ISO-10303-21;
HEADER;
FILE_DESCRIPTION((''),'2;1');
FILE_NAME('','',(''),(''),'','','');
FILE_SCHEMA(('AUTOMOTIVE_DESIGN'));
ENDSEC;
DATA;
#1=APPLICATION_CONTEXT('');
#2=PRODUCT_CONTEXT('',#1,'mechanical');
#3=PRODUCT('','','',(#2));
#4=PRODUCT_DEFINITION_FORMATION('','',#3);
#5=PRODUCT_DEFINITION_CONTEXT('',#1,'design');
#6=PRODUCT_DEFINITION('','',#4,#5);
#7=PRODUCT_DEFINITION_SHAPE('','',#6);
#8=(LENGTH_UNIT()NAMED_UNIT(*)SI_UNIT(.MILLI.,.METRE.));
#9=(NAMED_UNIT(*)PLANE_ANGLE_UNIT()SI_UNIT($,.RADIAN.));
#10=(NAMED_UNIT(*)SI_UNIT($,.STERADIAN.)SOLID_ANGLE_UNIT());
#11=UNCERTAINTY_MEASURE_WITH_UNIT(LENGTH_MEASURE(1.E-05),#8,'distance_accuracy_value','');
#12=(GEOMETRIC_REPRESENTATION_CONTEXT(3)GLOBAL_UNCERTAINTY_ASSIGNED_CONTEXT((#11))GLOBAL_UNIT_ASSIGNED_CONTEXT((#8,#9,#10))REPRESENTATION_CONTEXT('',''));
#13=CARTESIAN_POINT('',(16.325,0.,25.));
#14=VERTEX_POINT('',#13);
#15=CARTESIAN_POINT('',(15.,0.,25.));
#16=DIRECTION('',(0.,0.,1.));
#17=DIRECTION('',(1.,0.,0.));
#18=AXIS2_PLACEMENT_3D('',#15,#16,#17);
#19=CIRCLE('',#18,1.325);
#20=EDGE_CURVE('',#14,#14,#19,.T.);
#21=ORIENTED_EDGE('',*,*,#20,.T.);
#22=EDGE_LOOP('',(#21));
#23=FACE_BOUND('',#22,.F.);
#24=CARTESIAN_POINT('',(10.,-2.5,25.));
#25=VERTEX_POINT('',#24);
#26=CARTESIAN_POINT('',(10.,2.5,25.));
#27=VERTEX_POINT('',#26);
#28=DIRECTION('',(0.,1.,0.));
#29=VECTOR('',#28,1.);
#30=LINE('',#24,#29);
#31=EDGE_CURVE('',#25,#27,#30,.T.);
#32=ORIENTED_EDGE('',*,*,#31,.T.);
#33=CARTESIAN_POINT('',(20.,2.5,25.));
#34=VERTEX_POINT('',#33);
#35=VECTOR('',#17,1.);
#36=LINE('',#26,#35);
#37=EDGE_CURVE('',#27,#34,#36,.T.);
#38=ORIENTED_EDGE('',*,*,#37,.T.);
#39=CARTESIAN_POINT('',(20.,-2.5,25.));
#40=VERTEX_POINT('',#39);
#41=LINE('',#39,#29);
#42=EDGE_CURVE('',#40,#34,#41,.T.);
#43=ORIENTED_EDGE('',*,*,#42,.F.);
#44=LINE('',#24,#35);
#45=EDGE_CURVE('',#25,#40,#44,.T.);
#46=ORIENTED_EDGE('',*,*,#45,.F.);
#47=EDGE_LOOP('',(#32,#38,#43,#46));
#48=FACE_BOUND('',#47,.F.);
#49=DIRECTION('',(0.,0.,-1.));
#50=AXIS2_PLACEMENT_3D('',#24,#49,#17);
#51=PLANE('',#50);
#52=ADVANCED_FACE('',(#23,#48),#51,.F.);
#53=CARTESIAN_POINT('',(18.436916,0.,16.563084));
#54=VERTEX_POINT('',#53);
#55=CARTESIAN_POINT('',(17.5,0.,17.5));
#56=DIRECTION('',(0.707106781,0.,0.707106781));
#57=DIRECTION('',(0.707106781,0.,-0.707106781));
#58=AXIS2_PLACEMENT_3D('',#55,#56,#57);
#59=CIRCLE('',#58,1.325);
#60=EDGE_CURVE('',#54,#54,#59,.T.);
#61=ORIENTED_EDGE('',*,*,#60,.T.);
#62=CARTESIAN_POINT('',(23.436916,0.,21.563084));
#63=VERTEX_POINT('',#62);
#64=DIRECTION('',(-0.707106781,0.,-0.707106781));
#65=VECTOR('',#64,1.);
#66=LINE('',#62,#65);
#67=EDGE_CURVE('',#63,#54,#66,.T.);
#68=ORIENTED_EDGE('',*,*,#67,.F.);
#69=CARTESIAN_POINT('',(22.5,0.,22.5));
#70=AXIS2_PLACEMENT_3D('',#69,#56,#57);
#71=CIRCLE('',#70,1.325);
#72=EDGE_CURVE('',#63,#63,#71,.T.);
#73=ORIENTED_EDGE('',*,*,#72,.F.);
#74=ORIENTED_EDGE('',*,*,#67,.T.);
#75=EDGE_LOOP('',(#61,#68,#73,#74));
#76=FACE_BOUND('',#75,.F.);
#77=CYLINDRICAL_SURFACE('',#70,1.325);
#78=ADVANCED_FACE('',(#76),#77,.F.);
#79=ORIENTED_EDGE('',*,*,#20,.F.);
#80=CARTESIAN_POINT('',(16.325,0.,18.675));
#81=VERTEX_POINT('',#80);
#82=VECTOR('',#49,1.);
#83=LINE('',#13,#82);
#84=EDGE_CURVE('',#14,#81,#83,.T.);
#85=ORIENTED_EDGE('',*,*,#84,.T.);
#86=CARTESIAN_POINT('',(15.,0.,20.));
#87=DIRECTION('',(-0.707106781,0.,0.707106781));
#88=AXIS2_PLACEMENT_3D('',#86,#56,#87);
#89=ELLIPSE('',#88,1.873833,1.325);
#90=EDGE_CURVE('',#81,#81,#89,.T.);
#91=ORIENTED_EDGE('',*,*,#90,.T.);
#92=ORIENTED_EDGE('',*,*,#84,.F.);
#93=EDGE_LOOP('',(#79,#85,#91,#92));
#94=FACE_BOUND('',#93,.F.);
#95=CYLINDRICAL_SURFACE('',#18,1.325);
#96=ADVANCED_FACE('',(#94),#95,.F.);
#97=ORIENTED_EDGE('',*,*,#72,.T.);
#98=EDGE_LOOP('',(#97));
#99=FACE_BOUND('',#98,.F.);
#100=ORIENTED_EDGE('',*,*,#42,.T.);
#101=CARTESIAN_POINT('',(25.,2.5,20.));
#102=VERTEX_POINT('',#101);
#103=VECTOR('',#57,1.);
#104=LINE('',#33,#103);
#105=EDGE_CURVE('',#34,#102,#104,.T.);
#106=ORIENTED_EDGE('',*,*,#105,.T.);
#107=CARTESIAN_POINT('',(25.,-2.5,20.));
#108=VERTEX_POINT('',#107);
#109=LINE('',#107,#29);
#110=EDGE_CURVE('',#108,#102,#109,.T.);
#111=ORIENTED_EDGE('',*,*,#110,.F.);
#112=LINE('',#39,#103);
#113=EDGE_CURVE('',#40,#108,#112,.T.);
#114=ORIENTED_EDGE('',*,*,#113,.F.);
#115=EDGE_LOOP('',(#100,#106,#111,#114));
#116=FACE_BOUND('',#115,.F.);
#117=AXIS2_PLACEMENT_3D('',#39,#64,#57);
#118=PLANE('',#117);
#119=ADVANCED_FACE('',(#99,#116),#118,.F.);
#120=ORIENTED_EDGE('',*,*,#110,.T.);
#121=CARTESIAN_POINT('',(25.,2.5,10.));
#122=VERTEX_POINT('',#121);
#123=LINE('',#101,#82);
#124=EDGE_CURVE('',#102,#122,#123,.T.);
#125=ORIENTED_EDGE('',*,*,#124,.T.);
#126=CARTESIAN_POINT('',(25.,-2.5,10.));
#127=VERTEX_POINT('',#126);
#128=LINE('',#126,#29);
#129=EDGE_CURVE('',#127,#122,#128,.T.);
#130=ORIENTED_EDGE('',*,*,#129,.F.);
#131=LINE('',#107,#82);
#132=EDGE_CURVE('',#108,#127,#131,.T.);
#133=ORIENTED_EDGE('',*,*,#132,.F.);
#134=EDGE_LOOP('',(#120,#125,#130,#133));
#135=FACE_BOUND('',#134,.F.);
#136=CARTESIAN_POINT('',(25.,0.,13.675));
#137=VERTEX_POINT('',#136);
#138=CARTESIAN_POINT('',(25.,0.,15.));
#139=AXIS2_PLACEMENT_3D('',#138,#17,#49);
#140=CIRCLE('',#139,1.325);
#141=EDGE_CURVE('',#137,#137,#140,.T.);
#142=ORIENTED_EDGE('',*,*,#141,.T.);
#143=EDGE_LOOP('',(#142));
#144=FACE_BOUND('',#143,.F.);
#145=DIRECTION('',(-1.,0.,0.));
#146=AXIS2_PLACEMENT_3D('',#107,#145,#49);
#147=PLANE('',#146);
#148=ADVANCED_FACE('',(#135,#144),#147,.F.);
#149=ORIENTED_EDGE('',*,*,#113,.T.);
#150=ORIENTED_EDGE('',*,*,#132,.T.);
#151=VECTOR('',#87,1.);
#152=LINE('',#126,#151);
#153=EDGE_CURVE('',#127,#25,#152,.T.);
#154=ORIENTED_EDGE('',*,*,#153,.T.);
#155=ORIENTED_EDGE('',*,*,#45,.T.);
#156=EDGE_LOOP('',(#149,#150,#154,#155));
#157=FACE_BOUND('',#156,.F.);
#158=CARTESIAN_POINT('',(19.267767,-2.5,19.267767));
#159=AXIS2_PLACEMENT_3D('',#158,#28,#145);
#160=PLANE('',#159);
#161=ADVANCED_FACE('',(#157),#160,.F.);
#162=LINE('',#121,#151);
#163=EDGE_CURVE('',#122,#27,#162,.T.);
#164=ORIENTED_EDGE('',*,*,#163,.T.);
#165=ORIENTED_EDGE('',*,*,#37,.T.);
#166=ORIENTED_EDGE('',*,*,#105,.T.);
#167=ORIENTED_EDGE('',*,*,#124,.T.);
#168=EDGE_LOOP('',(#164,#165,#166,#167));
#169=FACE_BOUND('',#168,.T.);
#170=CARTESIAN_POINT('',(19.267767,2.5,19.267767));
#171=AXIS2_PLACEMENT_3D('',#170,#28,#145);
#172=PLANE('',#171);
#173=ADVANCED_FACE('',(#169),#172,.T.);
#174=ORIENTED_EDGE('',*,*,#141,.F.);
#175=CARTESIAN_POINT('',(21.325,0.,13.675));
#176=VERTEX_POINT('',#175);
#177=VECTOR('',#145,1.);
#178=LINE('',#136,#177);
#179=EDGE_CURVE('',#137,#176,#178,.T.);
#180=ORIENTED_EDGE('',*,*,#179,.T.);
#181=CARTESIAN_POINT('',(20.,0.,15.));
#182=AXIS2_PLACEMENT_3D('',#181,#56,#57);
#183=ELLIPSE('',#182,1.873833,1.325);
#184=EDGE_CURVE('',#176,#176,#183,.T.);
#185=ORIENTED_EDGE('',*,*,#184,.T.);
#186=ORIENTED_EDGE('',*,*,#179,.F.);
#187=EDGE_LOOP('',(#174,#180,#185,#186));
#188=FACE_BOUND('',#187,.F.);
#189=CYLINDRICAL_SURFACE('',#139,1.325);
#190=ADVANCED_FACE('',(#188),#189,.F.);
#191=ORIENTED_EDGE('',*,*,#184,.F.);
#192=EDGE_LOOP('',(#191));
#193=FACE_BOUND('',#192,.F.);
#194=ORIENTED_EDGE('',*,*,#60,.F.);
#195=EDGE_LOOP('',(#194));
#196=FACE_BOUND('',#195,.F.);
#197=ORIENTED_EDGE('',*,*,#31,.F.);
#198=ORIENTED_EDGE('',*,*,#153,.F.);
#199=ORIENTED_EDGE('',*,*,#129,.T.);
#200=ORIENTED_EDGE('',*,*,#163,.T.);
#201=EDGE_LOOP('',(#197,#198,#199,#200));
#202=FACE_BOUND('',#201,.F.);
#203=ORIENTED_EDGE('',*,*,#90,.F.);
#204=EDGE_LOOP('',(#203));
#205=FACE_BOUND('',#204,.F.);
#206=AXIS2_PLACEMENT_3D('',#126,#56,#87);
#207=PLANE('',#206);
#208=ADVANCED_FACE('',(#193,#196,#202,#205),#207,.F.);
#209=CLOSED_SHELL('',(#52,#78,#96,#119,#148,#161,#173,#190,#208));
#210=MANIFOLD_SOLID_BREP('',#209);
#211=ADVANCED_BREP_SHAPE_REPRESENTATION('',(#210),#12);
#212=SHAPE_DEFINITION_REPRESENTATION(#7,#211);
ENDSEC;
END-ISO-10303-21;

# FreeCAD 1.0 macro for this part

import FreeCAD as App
import Part
import Sketcher

V = App.Vector

doc = App.newDocument("Part")
body = doc.addObject("PartDesign::Body", "Body")

# Sketch on XZ plane
sketch1 = doc.addObject("Sketcher::SketchObject", "Sketch")
body.addObject(sketch1)
sketch1.AttachmentSupport = (doc.XZ_Plane, [""])
sketch1.MapMode = "FlatFace"
sketch1.AttachmentOffset = App.Placement(V(0, 0, -2.5), App.Rotation())
sketch1.addGeometry([
    Part.LineSegment(V(-10, 25, 0), V(-20, 25, 0)),
    Part.LineSegment(V(-20, 25, 0), V(-25, 20, 0)),
    Part.LineSegment(V(-25, 20, 0), V(-25, 10, 0)),
    Part.LineSegment(V(-25, 10, 0), V(-10, 25, 0)),
], False)
sketch1.addConstraint([
    Sketcher.Constraint("Coincident", 0, 2, 1, 1),
    Sketcher.Constraint("Coincident", 1, 2, 2, 1),
    Sketcher.Constraint("Coincident", 2, 2, 3, 1),
    Sketcher.Constraint("Coincident", 3, 2, 0, 1),
    Sketcher.Constraint("Horizontal", 0),
    Sketcher.Constraint("Vertical", 2),
    Sketcher.Constraint("Parallel", 1, 3),
    Sketcher.Constraint("Equal", 0, 2),
    Sketcher.Constraint("DistanceX", 0, 2, 0, 1, 10.0),
    Sketcher.Constraint("DistanceX", 0, 2, -1, 1, 20.0),
    Sketcher.Constraint("DistanceY", -1, 1, 0, 2, 25.0),
    Sketcher.Constraint("DistanceX", 1, 2, -1, 1, 25.0),
])
pad1 = doc.addObject("PartDesign::Pad", "Pad")
body.addObject(pad1)
pad1.Profile = sketch1
pad1.Length = 5

# Sketch on XY plane
sketch2 = doc.addObject("Sketcher::SketchObject", "Sketch001")
body.addObject(sketch2)
sketch2.AttachmentSupport = (doc.XY_Plane, [""])
sketch2.MapMode = "FlatFace"
sketch2.AttachmentOffset = App.Placement(V(0, 0, 25), App.Rotation())
sketch2.addGeometry(Part.Circle(V(-15, 0, 0), V(0, 0, 1), 1.3), False)
sketch2.addConstraint([
    Sketcher.Constraint("PointOnObject", 0, 3, -1),
    Sketcher.Constraint("Diameter", 0, 2.65),
    Sketcher.Constraint("DistanceX", 0, 3, -1, 1, 15.0),
])
pocket1 = doc.addObject("PartDesign::Pocket", "Pocket")
body.addObject(pocket1)
pocket1.Profile = sketch2
pocket1.Type = "ThroughAll"

# Sketch on an angled plane
sketch3 = doc.addObject("Sketcher::SketchObject", "Sketch002")
body.addObject(sketch3)
sketch3.Placement = App.Placement(V(-22.5, 0, 22.5), App.Rotation(V(-0.707106781, 0, -0.707106781), V(0, -0.999999999, 0), V(-0.707106781, 0, 0.707106781), "ZXY"))
sketch3.addGeometry(Part.Circle(V(0, 0, 0), V(0, 0, 1), 1.3), False)
sketch3.addConstraint([
    Sketcher.Constraint("Coincident", 0, 3, -1, 1),
    Sketcher.Constraint("Diameter", 0, 2.65),
])
pocket2 = doc.addObject("PartDesign::Pocket", "Pocket001")
body.addObject(pocket2)
pocket2.Profile = sketch3
pocket2.Type = "ThroughAll"

# Sketch on YZ plane
sketch4 = doc.addObject("Sketcher::SketchObject", "Sketch003")
body.addObject(sketch4)
sketch4.AttachmentSupport = (doc.YZ_Plane, [""])
sketch4.MapMode = "FlatFace"
sketch4.AttachmentOffset = App.Placement(V(0, 0, -25), App.Rotation())
sketch4.addGeometry(Part.Circle(V(0, 15, 0), V(0, 0, 1), 1.3), False)
sketch4.addConstraint([
    Sketcher.Constraint("PointOnObject", 0, 3, -2),
    Sketcher.Constraint("Diameter", 0, 2.65),
    Sketcher.Constraint("DistanceY", -1, 1, 0, 3, 15.0),
])
pocket3 = doc.addObject("PartDesign::Pocket", "Pocket002")
body.addObject(pocket3)
pocket3.Profile = sketch4
pocket3.Type = "ThroughAll"
pocket3.Reversed = True
body2 = doc.addObject("PartDesign::Body", "Body001")
doc.recompute()

body.Placement = App.Placement(V(0, 0, 0), App.Rotation(V(0, 0, 1), 180))
boolean = doc.addObject("PartDesign::Boolean", "Boolean")
body2.addObject(boolean)
boolean.Type = "Fuse"
boolean.addObjects([body])

doc.recompute()
